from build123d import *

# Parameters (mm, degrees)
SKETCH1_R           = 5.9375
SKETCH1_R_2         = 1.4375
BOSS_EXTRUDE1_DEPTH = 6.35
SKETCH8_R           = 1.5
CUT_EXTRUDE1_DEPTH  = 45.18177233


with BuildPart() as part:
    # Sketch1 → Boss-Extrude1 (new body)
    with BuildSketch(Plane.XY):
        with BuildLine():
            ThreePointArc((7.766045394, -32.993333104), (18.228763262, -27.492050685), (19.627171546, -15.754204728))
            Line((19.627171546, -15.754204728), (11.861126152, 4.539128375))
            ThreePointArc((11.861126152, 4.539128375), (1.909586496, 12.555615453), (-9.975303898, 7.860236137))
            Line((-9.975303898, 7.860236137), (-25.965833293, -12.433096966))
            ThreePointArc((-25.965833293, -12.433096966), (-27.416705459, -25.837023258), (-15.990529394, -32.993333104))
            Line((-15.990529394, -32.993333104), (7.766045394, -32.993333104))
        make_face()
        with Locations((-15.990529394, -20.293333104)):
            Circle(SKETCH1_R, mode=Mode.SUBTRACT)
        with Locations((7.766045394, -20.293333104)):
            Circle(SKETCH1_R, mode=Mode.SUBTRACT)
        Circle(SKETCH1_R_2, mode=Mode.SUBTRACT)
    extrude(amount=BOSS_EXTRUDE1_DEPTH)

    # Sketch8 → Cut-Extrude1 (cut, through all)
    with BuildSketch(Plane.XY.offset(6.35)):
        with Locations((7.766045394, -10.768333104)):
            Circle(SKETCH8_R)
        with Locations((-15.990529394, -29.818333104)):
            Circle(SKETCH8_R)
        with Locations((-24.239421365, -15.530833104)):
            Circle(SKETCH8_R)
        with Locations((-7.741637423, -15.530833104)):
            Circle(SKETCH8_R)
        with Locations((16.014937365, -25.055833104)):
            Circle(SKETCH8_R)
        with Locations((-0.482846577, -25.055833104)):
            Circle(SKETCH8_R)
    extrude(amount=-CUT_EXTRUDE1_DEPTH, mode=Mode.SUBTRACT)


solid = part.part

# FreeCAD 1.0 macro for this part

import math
import FreeCAD as App
import Part
import Sketcher
from FreeCAD import Vector
Q = App.Units.Quantity

doc = App.newDocument("Part")
body = doc.addObject("PartDesign::Body", "Body")

sketch1 = body.newObject("Sketcher::SketchObject", "Sketch")
sketch1.AttachmentSupport = (doc.getObject("XY_Plane"), [""])
sketch1.MapMode = "FlatFace"
sketch1.addGeometry([
    Part.ArcOfCircle(Part.Circle(Vector(7.766045, -20.293333, 0), Vector(0, 0, 1), 12.7), math.radians(-90), math.radians(20.941323)),
    Part.LineSegment(Vector(19.627172, -15.754205, 0), Vector(11.861126, 4.539128, 0)),
    Part.ArcOfCircle(Part.Circle(Vector(0, 0, 0), Vector(0, 0, 1), 12.7), math.radians(20.941323), math.radians(141.762965)),
    Part.LineSegment(Vector(-9.975304, 7.860236, 0), Vector(-25.965833, -12.433097, 0)),
    Part.ArcOfCircle(Part.Circle(Vector(-15.990529, -20.293333, 0), Vector(0, 0, 1), 12.7), math.radians(141.762965), math.radians(270)),
    Part.LineSegment(Vector(-15.990529, -32.993333, 0), Vector(7.766045, -32.993333, 0)),
    Part.Circle(Vector(-15.990529, -20.293333, 0), Vector(0, 0, 1), 5.9375),
    Part.Circle(Vector(7.766045, -20.293333, 0), Vector(0, 0, 1), 5.9375),
    Part.Circle(Vector(0, 0, 0), Vector(0, 0, 1), 1.4375),
], False)
sketch1.addConstraint([
    Sketcher.Constraint("Tangent", 0, 2, 1, 1),
    Sketcher.Constraint("Tangent", 1, 2, 2, 1),
    Sketcher.Constraint("Tangent", 2, 2, 3, 1),
    Sketcher.Constraint("Tangent", 3, 2, 4, 1),
    Sketcher.Constraint("Tangent", 4, 2, 5, 1),
    Sketcher.Constraint("Tangent", 5, 2, 0, 1),
    Sketcher.Constraint("Horizontal", 5),
    Sketcher.Constraint("Coincident", 2, 3, -1, 1),
    Sketcher.Constraint("Coincident", 8, 3, -1, 1),
    Sketcher.Constraint("Coincident", 6, 3, 4, 3),
    Sketcher.Constraint("Coincident", 7, 3, 0, 3),
    Sketcher.Constraint("Equal", 0, 2),
    Sketcher.Constraint("Equal", 2, 4),
    Sketcher.Constraint("Equal", 6, 7),
    Sketcher.Constraint("Radius", 0, Q("0.5 in")),
    Sketcher.Constraint("Diameter", 6, 11.875),
    Sketcher.Constraint("Diameter", 8, 2.875),
    Sketcher.Constraint("DistanceX", 4, 3, 0, 2, 35.617701),
    Sketcher.Constraint("Distance", 1, 21.728572),
    Sketcher.Constraint("Distance", 3, 25.836339),
])
pad1 = body.newObject("PartDesign::Pad", "Pad")
pad1.Profile = sketch1
pad1.Length = Q("0.25 in")

sketch2 = body.newObject("Sketcher::SketchObject", "Sketch001")
sketch2.AttachmentSupport = (doc.getObject("XY_Plane"), [""])
sketch2.MapMode = "FlatFace"
sketch2.AttachmentOffset = App.Placement(Vector(0, 0, 0.25 * 25.4), App.Rotation())
sketch2.addGeometry([
    Part.Circle(Vector(7.766045, -10.768333, 0), Vector(0, 0, 1), 1.5),
    Part.Circle(Vector(-15.990529, -29.818333, 0), Vector(0, 0, 1), 1.5),
    Part.Circle(Vector(-24.239421, -15.530833, 0), Vector(0, 0, 1), 1.5),
    Part.Circle(Vector(-7.741637, -15.530833, 0), Vector(0, 0, 1), 1.5),
    Part.Circle(Vector(16.014937, -25.055833, 0), Vector(0, 0, 1), 1.5),
    Part.Circle(Vector(-0.482847, -25.055833, 0), Vector(0, 0, 1), 1.5),
], False)
sketch2.addConstraint([
    Sketcher.Constraint("Equal", 0, 1),
    Sketcher.Constraint("Equal", 1, 2),
    Sketcher.Constraint("Equal", 2, 3),
    Sketcher.Constraint("Equal", 3, 4),
    Sketcher.Constraint("Equal", 4, 5),
    Sketcher.Constraint("Horizontal", 2, 3, 3, 3),
    Sketcher.Constraint("Horizontal", 4, 3, 5, 3),
    Sketcher.Constraint("Diameter", 0, 3.0),
    Sketcher.Constraint("DistanceY", 1, 3, 0, 3, Q("0.75 in")),
    Sketcher.Constraint("DistanceY", 1, 3, 2, 3, Q("0.5625 in")),
    Sketcher.Constraint("DistanceY", 4, 3, 0, 3, Q("0.5625 in")),
    Sketcher.Constraint("DistanceX", 1, 3, -1, 1, 15.990529),
    Sketcher.Constraint("DistanceX", 2, 3, -1, 1, 24.239421),
    Sketcher.Constraint("DistanceX", 1, 3, 3, 3, 8.248892),
    Sketcher.Constraint("DistanceX", 0, 3, 4, 3, 8.248892),
    Sketcher.Constraint("DistanceX", 2, 3, 4, 3, 40.254359),
    Sketcher.Constraint("DistanceX", 3, 3, 5, 3, 7.258791),
    Sketcher.Constraint("DistanceY", 0, 3, -1, 1, 10.768333),
])
pocket1 = body.newObject("PartDesign::Pocket", "Pocket")
pocket1.Profile = sketch2
pocket1.Type = "ThroughAll"

doc.recompute()
